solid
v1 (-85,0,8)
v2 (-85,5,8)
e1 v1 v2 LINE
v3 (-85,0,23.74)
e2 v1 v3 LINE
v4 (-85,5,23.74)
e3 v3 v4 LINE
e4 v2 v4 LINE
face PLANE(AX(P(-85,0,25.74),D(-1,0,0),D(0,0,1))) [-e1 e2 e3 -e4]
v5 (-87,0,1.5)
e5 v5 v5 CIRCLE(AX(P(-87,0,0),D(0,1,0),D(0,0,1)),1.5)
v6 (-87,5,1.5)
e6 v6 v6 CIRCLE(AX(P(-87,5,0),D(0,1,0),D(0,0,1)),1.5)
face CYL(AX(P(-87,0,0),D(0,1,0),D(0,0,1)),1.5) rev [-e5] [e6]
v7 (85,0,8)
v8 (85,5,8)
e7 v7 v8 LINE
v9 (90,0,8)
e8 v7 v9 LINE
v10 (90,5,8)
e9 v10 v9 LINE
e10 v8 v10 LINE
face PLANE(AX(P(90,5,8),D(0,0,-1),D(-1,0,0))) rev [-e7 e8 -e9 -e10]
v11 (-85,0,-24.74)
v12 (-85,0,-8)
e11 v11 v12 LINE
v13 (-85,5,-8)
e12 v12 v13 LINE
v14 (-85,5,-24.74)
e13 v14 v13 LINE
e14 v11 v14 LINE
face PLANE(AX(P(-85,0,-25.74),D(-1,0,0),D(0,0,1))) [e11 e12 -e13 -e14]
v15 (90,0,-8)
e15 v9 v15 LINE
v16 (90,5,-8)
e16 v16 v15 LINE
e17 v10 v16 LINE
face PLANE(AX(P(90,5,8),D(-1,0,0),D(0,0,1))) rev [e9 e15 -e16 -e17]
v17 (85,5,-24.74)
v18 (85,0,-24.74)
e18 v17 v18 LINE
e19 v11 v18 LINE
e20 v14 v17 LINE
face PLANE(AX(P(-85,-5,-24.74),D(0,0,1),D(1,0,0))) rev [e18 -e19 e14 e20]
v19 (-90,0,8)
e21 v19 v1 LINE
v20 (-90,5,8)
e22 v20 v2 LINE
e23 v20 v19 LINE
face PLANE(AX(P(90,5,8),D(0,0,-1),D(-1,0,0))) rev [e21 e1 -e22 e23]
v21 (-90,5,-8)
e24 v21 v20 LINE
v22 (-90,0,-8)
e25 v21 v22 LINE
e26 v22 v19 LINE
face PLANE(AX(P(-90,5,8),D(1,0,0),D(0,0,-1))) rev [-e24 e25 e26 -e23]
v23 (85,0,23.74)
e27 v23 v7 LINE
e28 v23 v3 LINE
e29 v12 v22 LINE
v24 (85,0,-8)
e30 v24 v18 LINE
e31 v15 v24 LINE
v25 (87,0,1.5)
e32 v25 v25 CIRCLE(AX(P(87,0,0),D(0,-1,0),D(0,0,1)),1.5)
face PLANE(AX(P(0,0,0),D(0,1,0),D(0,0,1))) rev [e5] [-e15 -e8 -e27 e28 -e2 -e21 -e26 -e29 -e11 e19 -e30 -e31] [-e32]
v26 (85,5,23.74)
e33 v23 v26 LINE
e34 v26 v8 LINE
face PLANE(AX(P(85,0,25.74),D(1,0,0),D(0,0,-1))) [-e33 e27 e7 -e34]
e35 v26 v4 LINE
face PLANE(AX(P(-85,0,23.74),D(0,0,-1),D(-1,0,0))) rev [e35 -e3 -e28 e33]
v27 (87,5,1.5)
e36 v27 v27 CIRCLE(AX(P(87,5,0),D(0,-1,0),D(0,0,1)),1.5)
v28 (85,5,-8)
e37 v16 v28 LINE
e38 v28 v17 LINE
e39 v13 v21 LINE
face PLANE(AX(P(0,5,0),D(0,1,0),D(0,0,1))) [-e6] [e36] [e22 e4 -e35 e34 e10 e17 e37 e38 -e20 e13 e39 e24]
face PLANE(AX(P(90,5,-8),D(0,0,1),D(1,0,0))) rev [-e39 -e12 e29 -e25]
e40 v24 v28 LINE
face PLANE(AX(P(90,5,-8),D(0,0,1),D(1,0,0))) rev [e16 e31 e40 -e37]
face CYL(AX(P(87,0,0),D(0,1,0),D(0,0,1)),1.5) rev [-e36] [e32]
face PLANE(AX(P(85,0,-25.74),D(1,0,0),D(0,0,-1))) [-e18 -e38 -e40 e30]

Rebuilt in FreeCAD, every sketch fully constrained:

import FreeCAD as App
import Part
import Sketcher

V = App.Vector


def add_polygon(sketch, points):
    """Adds a closed chain of lines whose ends are joined by coincident constraints."""
    first, n = sketch.GeometryCount, len(points)
    for a, b in zip(points, points[1:] + points[:1]):
        sketch.addGeometry(Part.LineSegment(App.Vector(*a, 0), App.Vector(*b, 0)), False)
    for i in range(n):
        sketch.addConstraint(Sketcher.Constraint("Coincident", first + i, 2, first + (i + 1) % n, 1))

doc = App.newDocument("Part")
body = doc.addObject("PartDesign::Body", "Body")

# Sketch on XZ plane
sketch1 = body.newObject("Sketcher::SketchObject", "Sketch")
sketch1.AttachmentSupport = (doc.getObject("XZ_Plane"), [""])
sketch1.MapMode = "FlatFace"
add_polygon(sketch1, [(-90, -8), (-90, 8), (90, 8), (90, -8)])  # lines 0-3
sketch1.addConstraint([
    Sketcher.Constraint("Vertical", 0),
    Sketcher.Constraint("Horizontal", 1),
    Sketcher.Constraint("Vertical", 2),
    Sketcher.Constraint("Horizontal", 3),
    Sketcher.Constraint("Symmetric", 0, 2, 2, 2, -1, 1),
    Sketcher.Constraint("DistanceX", 1, 1, 1, 2, 180.0),
    Sketcher.Constraint("DistanceY", 0, 1, 0, 2, 16.0),
])
pad1 = body.newObject("PartDesign::Pad", "Pad")
pad1.Profile = sketch1
pad1.Length = 5
pad1.Reversed = True

# Sketch on XZ plane
sketch2 = body.newObject("Sketcher::SketchObject", "Sketch001")
sketch2.AttachmentSupport = (doc.getObject("XZ_Plane"), [""])
sketch2.MapMode = "FlatFace"
sketch2.AttachmentOffset = App.Placement(V(0, 0, -5), App.Rotation())
add_polygon(sketch2, [(-85, -26), (-85, -8), (85, -8), (85, -26)])  # lines 0-3
add_polygon(sketch2, [(-85, 8), (-85, 26), (85, 26), (85, 8)])  # lines 4-7
sketch2.addConstraint([
    Sketcher.Constraint("Vertical", 0),
    Sketcher.Constraint("Horizontal", 1),
    Sketcher.Constraint("Vertical", 2),
    Sketcher.Constraint("Horizontal", 3),
    Sketcher.Constraint("Vertical", 4),
    Sketcher.Constraint("Horizontal", 5),
    Sketcher.Constraint("Vertical", 6),
    Sketcher.Constraint("Horizontal", 7),
    Sketcher.Constraint("Symmetric", 2, 2, 4, 2, -1, 1),
    Sketcher.Constraint("Symmetric", 0, 2, 6, 2, -1, 1),
    Sketcher.Constraint("Vertical", 3, 2, 4, 2),
    Sketcher.Constraint("DistanceX", 1, 1, 1, 2, 170.0),
    Sketcher.Constraint("DistanceY", 0, 2, -1, 1, 8.0),
    Sketcher.Constraint("DistanceY", 0, 1, 0, 2, 17.74),
])
pad2 = body.newObject("PartDesign::Pad", "Pad001")
pad2.Profile = sketch2
pad2.Length = 5

# Sketch on XZ plane
sketch3 = body.newObject("Sketcher::SketchObject", "Sketch002")
sketch3.AttachmentSupport = (doc.getObject("XZ_Plane"), [""])
sketch3.MapMode = "FlatFace"
sketch3.AttachmentOffset = App.Placement(V(0, 0, -5), App.Rotation())
sketch3.addGeometry(Part.Circle(V(-87, 0, 0), V(0, 0, 1), 1.5), False)
sketch3.addConstraint([
    Sketcher.Constraint("PointOnObject", 0, 3, -1),
    Sketcher.Constraint("Diameter", 0, 3.0),
    Sketcher.Constraint("DistanceX", 0, 3, -1, 1, 87.0),
])
pocket1 = body.newObject("PartDesign::Pocket", "Pocket")
pocket1.Profile = sketch3
pocket1.Length = 5
pocket1.Reversed = True
doc.recompute()

mirrored = body.newObject("PartDesign::Mirrored", "Mirrored")
mirrored.Originals = [pocket1]
mirrored.MirrorPlane = (doc.getObject("YZ_Plane"), [""])
body.Tip = mirrored

# Sketch on XZ plane
sketch4 = body.newObject("Sketcher::SketchObject", "Sketch003")
sketch4.AttachmentSupport = (doc.getObject("XZ_Plane"), [""])
sketch4.MapMode = "FlatFace"
sketch4.AttachmentOffset = App.Placement(V(0, 0, -5), App.Rotation())
add_polygon(sketch4, [(-85, 23.7), (-85, 25.7), (85, 25.7), (85, 23.7)])  # lines 0-3
sketch4.addConstraint([
    Sketcher.Constraint("Vertical", 0),
    Sketcher.Constraint("Horizontal", 1),
    Sketcher.Constraint("Vertical", 2),
    Sketcher.Constraint("Horizontal", 3),
    Sketcher.Constraint("DistanceX", 1, 1, 1, 2, 170.0),
    Sketcher.Constraint("DistanceY", 0, 1, 0, 2, 2.0),
    Sketcher.Constraint("DistanceX", 0, 2, -1, 1, 85.0),
    Sketcher.Constraint("DistanceY", -1, 1, 0, 2, 25.74),
])
pocket2 = body.newObject("PartDesign::Pocket", "Pocket001")
pocket2.Profile = sketch4
pocket2.Type = "ThroughAll"
pocket2.Reversed = True

# Sketch on XZ plane
sketch5 = body.newObject("Sketcher::SketchObject", "Sketch004")
sketch5.AttachmentSupport = (doc.getObject("XZ_Plane"), [""])
sketch5.MapMode = "FlatFace"
sketch5.AttachmentOffset = App.Placement(V(0, 0, -5), App.Rotation())
add_polygon(sketch5, [(-85, -25.7), (-85, -24.7), (85, -24.7), (85, -25.7)])  # lines 0-3
sketch5.addConstraint([
    Sketcher.Constraint("Vertical", 0),
    Sketcher.Constraint("Horizontal", 1),
    Sketcher.Constraint("Vertical", 2),
    Sketcher.Constraint("Horizontal", 3),
    Sketcher.Constraint("DistanceX", 1, 1, 1, 2, 170.0),
    Sketcher.Constraint("DistanceY", 0, 1, 0, 2, 1.0),
    Sketcher.Constraint("DistanceX", 0, 2, -1, 1, 85.0),
    Sketcher.Constraint("DistanceY", 0, 2, -1, 1, 24.74),
])
pocket3 = body.newObject("PartDesign::Pocket", "Pocket002")
pocket3.Profile = sketch5
pocket3.Length = 10
pocket3.Reversed = True

doc.recompute()
